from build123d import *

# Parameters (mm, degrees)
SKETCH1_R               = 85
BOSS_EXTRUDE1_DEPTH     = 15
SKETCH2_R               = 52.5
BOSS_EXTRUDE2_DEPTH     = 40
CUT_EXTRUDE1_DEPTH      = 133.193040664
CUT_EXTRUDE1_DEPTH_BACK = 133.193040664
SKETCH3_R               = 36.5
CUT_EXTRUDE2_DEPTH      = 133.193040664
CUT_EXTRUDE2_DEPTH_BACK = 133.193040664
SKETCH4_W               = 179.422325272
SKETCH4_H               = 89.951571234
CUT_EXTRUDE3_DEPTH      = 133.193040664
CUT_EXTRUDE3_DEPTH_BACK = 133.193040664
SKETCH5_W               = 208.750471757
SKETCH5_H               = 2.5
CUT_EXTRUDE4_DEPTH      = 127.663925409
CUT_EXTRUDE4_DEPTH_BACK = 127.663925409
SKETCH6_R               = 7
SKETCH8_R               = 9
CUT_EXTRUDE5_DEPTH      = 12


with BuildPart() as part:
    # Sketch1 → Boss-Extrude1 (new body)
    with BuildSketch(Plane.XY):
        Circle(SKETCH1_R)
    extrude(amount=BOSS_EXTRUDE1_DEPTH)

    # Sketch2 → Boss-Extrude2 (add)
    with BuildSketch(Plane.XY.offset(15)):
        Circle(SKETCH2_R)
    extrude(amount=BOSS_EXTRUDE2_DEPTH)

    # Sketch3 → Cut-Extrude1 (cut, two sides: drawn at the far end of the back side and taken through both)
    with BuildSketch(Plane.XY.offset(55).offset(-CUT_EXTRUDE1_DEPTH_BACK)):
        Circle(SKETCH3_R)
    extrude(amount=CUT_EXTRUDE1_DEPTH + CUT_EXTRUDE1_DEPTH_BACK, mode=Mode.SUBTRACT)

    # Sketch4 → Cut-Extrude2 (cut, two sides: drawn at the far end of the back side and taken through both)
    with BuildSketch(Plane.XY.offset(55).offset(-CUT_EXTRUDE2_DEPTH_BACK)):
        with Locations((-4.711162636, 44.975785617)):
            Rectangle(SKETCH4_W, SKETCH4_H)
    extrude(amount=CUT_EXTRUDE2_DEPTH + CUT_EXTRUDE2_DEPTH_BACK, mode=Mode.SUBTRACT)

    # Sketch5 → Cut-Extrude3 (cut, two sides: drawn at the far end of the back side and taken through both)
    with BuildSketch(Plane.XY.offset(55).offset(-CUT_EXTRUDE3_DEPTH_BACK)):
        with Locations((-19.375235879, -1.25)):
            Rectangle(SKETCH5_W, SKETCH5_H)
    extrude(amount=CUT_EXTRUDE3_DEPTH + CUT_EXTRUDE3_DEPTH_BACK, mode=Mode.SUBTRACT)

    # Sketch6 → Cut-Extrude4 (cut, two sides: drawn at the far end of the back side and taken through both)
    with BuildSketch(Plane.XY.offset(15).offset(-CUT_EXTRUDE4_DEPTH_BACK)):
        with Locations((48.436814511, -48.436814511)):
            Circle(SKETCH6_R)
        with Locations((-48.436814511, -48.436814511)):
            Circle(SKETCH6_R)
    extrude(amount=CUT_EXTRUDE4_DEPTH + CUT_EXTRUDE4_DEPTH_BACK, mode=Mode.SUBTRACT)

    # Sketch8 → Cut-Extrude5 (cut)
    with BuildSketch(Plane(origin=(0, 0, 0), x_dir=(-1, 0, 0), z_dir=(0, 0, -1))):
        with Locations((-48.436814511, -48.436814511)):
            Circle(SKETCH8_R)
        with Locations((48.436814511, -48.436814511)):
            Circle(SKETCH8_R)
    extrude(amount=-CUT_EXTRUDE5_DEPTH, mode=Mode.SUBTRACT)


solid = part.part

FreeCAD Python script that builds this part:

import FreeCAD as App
import Part
import Sketcher
from FreeCAD import Vector
Q = App.Units.Quantity


def add_polygon(sketch, points):
    """Adds a closed chain of lines whose ends are joined by coincident constraints."""
    first, n = sketch.GeometryCount, len(points)
    for a, b in zip(points, points[1:] + points[:1]):
        sketch.addGeometry(Part.LineSegment(App.Vector(*a, 0), App.Vector(*b, 0)), False)
    for i in range(n):
        sketch.addConstraint(Sketcher.Constraint("Coincident", first + i, 2, first + (i + 1) % n, 1))

doc = App.newDocument("Part")
params = doc.addObject("Spreadsheet::Sheet", "Params")
for row, (alias, value) in enumerate([
    ("sketch1_diameter", "170 mm"),
    ("pad1_length", "15 mm"),
    ("sketch2_diameter", "105 mm"),
    ("pad2_length", "40 mm"),
    ("sketch3_diameter", "73 mm"),
    ("sketch5_height", "2.5 mm"),
    ("sketch6_diameter", "14 mm"),
    ("sketch7_diameter", "18 mm"),
    ("pocket5_length", "12 mm"),
], start=1):
    params.set(f"A{row}", alias)
    params.set(f"B{row}", "=" + value)
    params.setAlias(f"B{row}", alias)

body = doc.addObject("PartDesign::Body", "Body")

# Sketch on XY plane
sketch1 = body.newObject("Sketcher::SketchObject", "Sketch")
sketch1.AttachmentSupport = (doc.getObject("XY_Plane"), [""])
sketch1.MapMode = "FlatFace"
sketch1.addGeometry(Part.Circle(Vector(0, 0, 0), Vector(0, 0, 1), 85), False)
sketch1.addConstraint(Sketcher.Constraint("Coincident", 0, 3, -1, 1))
sketch1.addConstraint(Sketcher.Constraint("Diameter", 0, Q("170 mm")))
sketch1.setExpression("Constraints[1]", "Params.sketch1_diameter")
pad1 = body.newObject("PartDesign::Pad", "Pad")
pad1.Profile = sketch1
pad1.setExpression("Length", "Params.pad1_length")

# Sketch on XY plane
sketch2 = body.newObject("Sketcher::SketchObject", "Sketch001")
sketch2.AttachmentSupport = (doc.getObject("XY_Plane"), [""])
sketch2.MapMode = "FlatFace"
sketch2.AttachmentOffset = App.Placement(Vector(0, 0, 15), App.Rotation())
sketch2.addGeometry(Part.Circle(Vector(0, 0, 0), Vector(0, 0, 1), 52), False)
sketch2.addConstraint(Sketcher.Constraint("Coincident", 0, 3, -1, 1))
sketch2.addConstraint(Sketcher.Constraint("Diameter", 0, Q("105 mm")))
sketch2.setExpression("Constraints[1]", "Params.sketch2_diameter")
pad2 = body.newObject("PartDesign::Pad", "Pad001")
pad2.Profile = sketch2
pad2.setExpression("Length", "Params.pad2_length")

# Sketch on XY plane
sketch3 = body.newObject("Sketcher::SketchObject", "Sketch002")
sketch3.AttachmentSupport = (doc.getObject("XY_Plane"), [""])
sketch3.MapMode = "FlatFace"
sketch3.AttachmentOffset = App.Placement(Vector(0, 0, 55), App.Rotation())
sketch3.addGeometry(Part.Circle(Vector(0, 0, 0), Vector(0, 0, 1), 36), False)
sketch3.addConstraint(Sketcher.Constraint("Coincident", 0, 3, -1, 1))
sketch3.addConstraint(Sketcher.Constraint("Diameter", 0, Q("73 mm")))
sketch3.setExpression("Constraints[1]", "Params.sketch3_diameter")
pocket1 = body.newObject("PartDesign::Pocket", "Pocket")
pocket1.Profile = sketch3
pocket1.Type = "ThroughAll"
pocket1.Midplane = True

# Sketch on XY plane
sketch4 = body.newObject("Sketcher::SketchObject", "Sketch003")
sketch4.AttachmentSupport = (doc.getObject("XY_Plane"), [""])
sketch4.MapMode = "FlatFace"
sketch4.AttachmentOffset = App.Placement(Vector(0, 0, 55), App.Rotation())
add_polygon(sketch4, [(-94, 90), (-94, 0), (85, 0), (85, 90)])  # lines 0-3
sketch4.addConstraint(Sketcher.Constraint("Vertical", 0))
sketch4.addConstraint(Sketcher.Constraint("Horizontal", 1))
sketch4.addConstraint(Sketcher.Constraint("Vertical", 2))
sketch4.addConstraint(Sketcher.Constraint("Horizontal", 3))
sketch4.addConstraint(Sketcher.Constraint("PointOnObject", 0, 2, -1))
sketch4.addConstraint(Sketcher.Constraint("DistanceX", -1, 1, 1, 2, Q("85 mm")))
sketch4.addConstraint(Sketcher.Constraint("DistanceY", 0, 2, 0, 1, Q("89.951571 mm")))
sketch4.addConstraint(Sketcher.Constraint("DistanceX", 1, 1, 1, 2, Q("179.422325 mm")))
pocket2 = body.newObject("PartDesign::Pocket", "Pocket001")
pocket2.Profile = sketch4
pocket2.Type = "ThroughAll"
pocket2.Midplane = True

# Sketch on XY plane
sketch5 = body.newObject("Sketcher::SketchObject", "Sketch004")
sketch5.AttachmentSupport = (doc.getObject("XY_Plane"), [""])
sketch5.MapMode = "FlatFace"
sketch5.AttachmentOffset = App.Placement(Vector(0, 0, 55), App.Rotation())
add_polygon(sketch5, [(-123.8, 0), (-123.8, -2.5), (85, -2.5), (85, 0)])  # lines 0-3
sketch5.addConstraint(Sketcher.Constraint("Vertical", 0))
sketch5.addConstraint(Sketcher.Constraint("Horizontal", 1))
sketch5.addConstraint(Sketcher.Constraint("Vertical", 2))
sketch5.addConstraint(Sketcher.Constraint("Horizontal", 3))
sketch5.addConstraint(Sketcher.Constraint("PointOnObject", 2, 2, -1))
sketch5.addConstraint(Sketcher.Constraint("DistanceY", 0, 2, 0, 1, Q("2.5 mm")))
sketch5.addConstraint(Sketcher.Constraint("DistanceX", -1, 1, 1, 2, Q("85 mm")))
sketch5.addConstraint(Sketcher.Constraint("DistanceX", 1, 1, 1, 2, Q("208.750472 mm")))
sketch5.setExpression("Constraints[9]", "Params.sketch5_height")
pocket3 = body.newObject("PartDesign::Pocket", "Pocket002")
pocket3.Profile = sketch5
pocket3.Type = "ThroughAll"
pocket3.Midplane = True

# Sketch on XY plane
sketch6 = body.newObject("Sketcher::SketchObject", "Sketch005")
sketch6.AttachmentSupport = (doc.getObject("XY_Plane"), [""])
sketch6.MapMode = "FlatFace"
sketch6.AttachmentOffset = App.Placement(Vector(0, 0, 15), App.Rotation())
sketch6.addGeometry(Part.Circle(Vector(48, -48, 0), Vector(0, 0, 1), 7), False)
sketch6.addGeometry(Part.Circle(Vector(-48, -48, 0), Vector(0, 0, 1), 7), False)
sketch6.addConstraint(Sketcher.Constraint("Equal", 0, 1))
sketch6.addConstraint(Sketcher.Constraint("Symmetric", 0, 3, 1, 3, -2))
sketch6.addConstraint(Sketcher.Constraint("Diameter", 0, Q("14 mm")))
sketch6.addConstraint(Sketcher.Constraint("DistanceX", 1, 3, 0, 3, Q("96.873629 mm")))
sketch6.addConstraint(Sketcher.Constraint("DistanceY", 0, 3, -1, 1, Q("48.436815 mm")))
sketch6.setExpression("Constraints[2]", "Params.sketch6_diameter")
pocket4 = body.newObject("PartDesign::Pocket", "Pocket003")
pocket4.Profile = sketch6
pocket4.Type = "ThroughAll"
pocket4.Midplane = True

# Sketch on XY plane
sketch7 = body.newObject("Sketcher::SketchObject", "Sketch006")
sketch7.AttachmentSupport = (doc.getObject("XY_Plane"), [""])
sketch7.MapMode = "FlatFace"
sketch7.addGeometry(Part.Circle(Vector(48, -48, 0), Vector(0, 0, 1), 9), False)
sketch7.addGeometry(Part.Circle(Vector(-48, -48, 0), Vector(0, 0, 1), 9), False)
sketch7.addConstraint(Sketcher.Constraint("Equal", 0, 1))
sketch7.addConstraint(Sketcher.Constraint("Symmetric", 0, 3, 1, 3, -2))
sketch7.addConstraint(Sketcher.Constraint("Diameter", 0, Q("18 mm")))
sketch7.addConstraint(Sketcher.Constraint("DistanceX", 1, 3, 0, 3, Q("96.873629 mm")))
sketch7.addConstraint(Sketcher.Constraint("DistanceY", 0, 3, -1, 1, Q("48.436815 mm")))
sketch7.setExpression("Constraints[2]", "Params.sketch7_diameter")
pocket5 = body.newObject("PartDesign::Pocket", "Pocket004")
pocket5.Profile = sketch7
pocket5.setExpression("Length", "Params.pocket5_length")
pocket5.Reversed = True

doc.recompute()
